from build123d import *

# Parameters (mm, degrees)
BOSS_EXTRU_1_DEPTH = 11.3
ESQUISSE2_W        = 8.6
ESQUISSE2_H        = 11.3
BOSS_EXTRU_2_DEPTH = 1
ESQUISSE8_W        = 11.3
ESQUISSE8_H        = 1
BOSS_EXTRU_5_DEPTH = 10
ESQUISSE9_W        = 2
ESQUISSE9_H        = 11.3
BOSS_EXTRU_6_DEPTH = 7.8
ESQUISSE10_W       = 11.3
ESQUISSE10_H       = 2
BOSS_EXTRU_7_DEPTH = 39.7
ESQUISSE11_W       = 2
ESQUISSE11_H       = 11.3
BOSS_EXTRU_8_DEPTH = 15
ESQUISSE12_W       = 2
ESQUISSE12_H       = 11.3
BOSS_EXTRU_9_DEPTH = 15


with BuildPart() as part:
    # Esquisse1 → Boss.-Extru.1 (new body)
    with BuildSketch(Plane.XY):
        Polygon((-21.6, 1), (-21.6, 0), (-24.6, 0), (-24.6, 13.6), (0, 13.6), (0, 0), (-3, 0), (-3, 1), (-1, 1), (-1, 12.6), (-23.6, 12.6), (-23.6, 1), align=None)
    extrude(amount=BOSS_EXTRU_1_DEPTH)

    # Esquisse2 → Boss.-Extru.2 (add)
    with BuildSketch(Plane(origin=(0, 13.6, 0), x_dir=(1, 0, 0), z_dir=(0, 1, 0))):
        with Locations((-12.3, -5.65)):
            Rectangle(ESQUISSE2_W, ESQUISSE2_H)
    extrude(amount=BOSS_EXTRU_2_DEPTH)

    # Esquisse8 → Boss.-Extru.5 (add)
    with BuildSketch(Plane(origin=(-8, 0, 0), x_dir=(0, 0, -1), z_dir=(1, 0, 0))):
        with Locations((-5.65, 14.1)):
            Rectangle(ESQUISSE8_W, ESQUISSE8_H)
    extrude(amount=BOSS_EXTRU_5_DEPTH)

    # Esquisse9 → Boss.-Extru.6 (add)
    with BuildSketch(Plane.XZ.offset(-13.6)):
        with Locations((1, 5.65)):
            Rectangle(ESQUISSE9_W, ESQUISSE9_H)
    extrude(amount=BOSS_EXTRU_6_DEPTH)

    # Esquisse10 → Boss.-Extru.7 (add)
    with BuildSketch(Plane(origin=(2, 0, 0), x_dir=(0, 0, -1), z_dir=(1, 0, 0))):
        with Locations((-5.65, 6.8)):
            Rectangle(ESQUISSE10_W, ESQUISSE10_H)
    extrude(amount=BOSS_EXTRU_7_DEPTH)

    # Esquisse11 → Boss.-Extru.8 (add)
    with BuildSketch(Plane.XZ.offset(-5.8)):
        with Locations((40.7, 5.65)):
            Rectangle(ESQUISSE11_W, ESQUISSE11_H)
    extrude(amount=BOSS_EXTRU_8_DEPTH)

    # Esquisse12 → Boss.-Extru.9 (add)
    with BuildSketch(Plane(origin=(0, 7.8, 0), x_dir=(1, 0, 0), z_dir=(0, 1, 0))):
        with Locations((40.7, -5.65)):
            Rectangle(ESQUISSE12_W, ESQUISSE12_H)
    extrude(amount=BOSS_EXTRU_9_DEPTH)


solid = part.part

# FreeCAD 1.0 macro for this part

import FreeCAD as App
import Part
import Sketcher

V = App.Vector
Q = App.Units.Quantity

doc = App.newDocument("Part")
params = doc.addObject("Spreadsheet::Sheet", "Params")
for row, (alias, value) in enumerate([
    ("sketch1_width", "2 mm"),
    ("sketch1_width2", "3 mm"),
    ("sketch1_height", "1 mm"),
    ("sketch1_width3", "22.6 mm"),
    ("sketch1_height2", "11.6 mm"),
    ("pad1_length", "11.3 mm"),
    ("sketch2_width", "8.6 mm"),
    ("sketch2_height", "11.3 mm"),
    ("pad2_length", "1 mm"),
    ("sketch3_width", "1 mm"),
    ("sketch3_height", "11.3 mm"),
    ("pad3_length", "10 mm"),
    ("sketch4_width", "2 mm"),
    ("sketch4_height", "11.3 mm"),
    ("pad4_length", "7.8 mm"),
    ("sketch5_width", "2 mm"),
    ("sketch5_height", "11.3 mm"),
    ("pad5_length", "39.7 mm"),
    ("sketch6_width", "2 mm"),
    ("sketch6_height", "11.3 mm"),
    ("pad6_length", "15 mm"),
    ("sketch7_width", "2 mm"),
    ("sketch7_height", "11.3 mm"),
    ("pad7_length", "15 mm"),
], start=1):
    params.set(f"A{row}", alias)
    params.set(f"B{row}", "=" + value)
    params.setAlias(f"B{row}", alias)

body = doc.addObject("PartDesign::Body", "Body")

sketch1 = body.newObject("Sketcher::SketchObject", "Sketch")
sketch1.AttachmentSupport = (doc.getObject("XY_Plane"), [""])
sketch1.MapMode = "FlatFace"
sketch1.addGeometry([
    Part.LineSegment(V(-21.6, 0, 0), V(-21.6, 1, 0)),
    Part.LineSegment(V(-21.6, 1, 0), V(-23.6, 1, 0)),
    Part.LineSegment(V(-23.6, 1, 0), V(-23.6, 12.6, 0)),
    Part.LineSegment(V(-23.6, 12.6, 0), V(-1, 12.6, 0)),
    Part.LineSegment(V(-1, 12.6, 0), V(-1, 1, 0)),
    Part.LineSegment(V(-1, 1, 0), V(-3, 1, 0)),
    Part.LineSegment(V(-3, 1, 0), V(-3, 0, 0)),
    Part.LineSegment(V(-3, 0, 0), V(0, 0, 0)),
    Part.LineSegment(V(0, 0, 0), V(0, 13.6, 0)),
    Part.LineSegment(V(0, 13.6, 0), V(-24.6, 13.6, 0)),
    Part.LineSegment(V(-24.6, 13.6, 0), V(-24.6, 0, 0)),
    Part.LineSegment(V(-24.6, 0, 0), V(-21.6, 0, 0)),
], False)
sketch1.addConstraint([
    Sketcher.Constraint("Coincident", 0, 2, 1, 1),
    Sketcher.Constraint("Coincident", 1, 2, 2, 1),
    Sketcher.Constraint("Coincident", 2, 2, 3, 1),
    Sketcher.Constraint("Coincident", 3, 2, 4, 1),
    Sketcher.Constraint("Coincident", 4, 2, 5, 1),
    Sketcher.Constraint("Coincident", 5, 2, 6, 1),
    Sketcher.Constraint("Coincident", 6, 2, 7, 1),
    Sketcher.Constraint("Coincident", 7, 2, 8, 1),
    Sketcher.Constraint("Coincident", 8, 2, 9, 1),
    Sketcher.Constraint("Coincident", 9, 2, 10, 1),
    Sketcher.Constraint("Coincident", 10, 2, 11, 1),
    Sketcher.Constraint("Coincident", 11, 2, 0, 1),
    Sketcher.Constraint("Vertical", 0),
    Sketcher.Constraint("Horizontal", 1),
    Sketcher.Constraint("Vertical", 2),
    Sketcher.Constraint("Horizontal", 3),
    Sketcher.Constraint("Vertical", 4),
    Sketcher.Constraint("Horizontal", 5),
    Sketcher.Constraint("Vertical", 6),
    Sketcher.Constraint("Horizontal", 7),
    Sketcher.Constraint("Vertical", 8),
    Sketcher.Constraint("Horizontal", 9),
    Sketcher.Constraint("Vertical", 10),
    Sketcher.Constraint("Horizontal", 11),
    Sketcher.Constraint("Coincident", 7, 2, -1, 1),
    Sketcher.Constraint("PointOnObject", 10, 2, -1),
    Sketcher.Constraint("Horizontal", 1, 2, 4, 2),
    Sketcher.Constraint("Equal", 1, 5),
    Sketcher.Constraint("Equal", 7, 11),
    Sketcher.Constraint("DistanceX", 1, 2, 1, 1, Q("2 mm")),
    Sketcher.Constraint("DistanceX", 7, 1, 7, 2, Q("3 mm")),
    Sketcher.Constraint("DistanceY", 0, 1, 0, 2, Q("1 mm")),
    Sketcher.Constraint("DistanceX", 3, 1, 3, 2, Q("22.6 mm")),
    Sketcher.Constraint("DistanceY", 2, 1, 2, 2, Q("11.6 mm")),
    Sketcher.Constraint("DistanceY", 8, 1, 8, 2, Q("13.6 mm")),
])
sketch1.setExpression("Constraints[29]", "Params.sketch1_width")
sketch1.setExpression("Constraints[30]", "Params.sketch1_width2")
sketch1.setExpression("Constraints[31]", "Params.sketch1_height")
sketch1.setExpression("Constraints[32]", "Params.sketch1_width3")
sketch1.setExpression("Constraints[33]", "Params.sketch1_height2")
pad1 = body.newObject("PartDesign::Pad", "Pad")
pad1.Profile = sketch1
pad1.setExpression("Length", "Params.pad1_length")

sketch2 = body.newObject("Sketcher::SketchObject", "Sketch001")
sketch2.AttachmentSupport = (doc.getObject("XZ_Plane"), [""])
sketch2.MapMode = "FlatFace"
sketch2.AttachmentOffset = App.Placement(V(0, 0, -13.6), App.Rotation())
sketch2.addGeometry([
    Part.LineSegment(V(-17, 0, 0), V(-17, 11, 0)),
    Part.LineSegment(V(-17, 11, 0), V(-8, 11, 0)),
    Part.LineSegment(V(-8, 11, 0), V(-8, 0, 0)),
    Part.LineSegment(V(-8, 0, 0), V(-17, 0, 0)),
], False)
sketch2.addConstraint([
    Sketcher.Constraint("Coincident", 0, 2, 1, 1),
    Sketcher.Constraint("Coincident", 1, 2, 2, 1),
    Sketcher.Constraint("Coincident", 2, 2, 3, 1),
    Sketcher.Constraint("Coincident", 3, 2, 0, 1),
    Sketcher.Constraint("Vertical", 0),
    Sketcher.Constraint("Horizontal", 1),
    Sketcher.Constraint("Vertical", 2),
    Sketcher.Constraint("Horizontal", 3),
    Sketcher.Constraint("PointOnObject", 2, 2, -1),
    Sketcher.Constraint("DistanceX", 1, 1, 1, 2, Q("8.6 mm")),
    Sketcher.Constraint("DistanceY", 0, 1, 0, 2, Q("11.3 mm")),
    Sketcher.Constraint("DistanceX", 1, 2, -1, 1, Q("8 mm")),
])
sketch2.setExpression("Constraints[9]", "Params.sketch2_width")
sketch2.setExpression("Constraints[10]", "Params.sketch2_height")
pad2 = body.newObject("PartDesign::Pad", "Pad001")
pad2.Profile = sketch2
pad2.setExpression("Length", "Params.pad2_length")
pad2.Reversed = True

sketch3 = body.newObject("Sketcher::SketchObject", "Sketch002")
sketch3.AttachmentSupport = (doc.getObject("YZ_Plane"), [""])
sketch3.MapMode = "FlatFace"
sketch3.AttachmentOffset = App.Placement(V(0, 0, -8), App.Rotation())
sketch3.addGeometry([
    Part.LineSegment(V(14.6, 11.3, 0), V(13.6, 11.3, 0)),
    Part.LineSegment(V(13.6, 11.3, 0), V(13.6, 0, 0)),
    Part.LineSegment(V(13.6, 0, 0), V(14.6, 0, 0)),
    Part.LineSegment(V(14.6, 0, 0), V(14.6, 11.3, 0)),
], False)
sketch3.addConstraint([
    Sketcher.Constraint("Coincident", 0, 2, 1, 1),
    Sketcher.Constraint("Coincident", 1, 2, 2, 1),
    Sketcher.Constraint("Coincident", 2, 2, 3, 1),
    Sketcher.Constraint("Coincident", 3, 2, 0, 1),
    Sketcher.Constraint("Horizontal", 0),
    Sketcher.Constraint("Vertical", 1),
    Sketcher.Constraint("Horizontal", 2),
    Sketcher.Constraint("Vertical", 3),
    Sketcher.Constraint("PointOnObject", 1, 2, -1),
    Sketcher.Constraint("DistanceX", 0, 2, 0, 1, Q("1 mm")),
    Sketcher.Constraint("DistanceY", 1, 2, 1, 1, Q("11.3 mm")),
    Sketcher.Constraint("DistanceX", -1, 1, 0, 2, Q("13.6 mm")),
])
sketch3.setExpression("Constraints[9]", "Params.sketch3_width")
sketch3.setExpression("Constraints[10]", "Params.sketch3_height")
pad3 = body.newObject("PartDesign::Pad", "Pad002")
pad3.Profile = sketch3
pad3.setExpression("Length", "Params.pad3_length")

sketch4 = body.newObject("Sketcher::SketchObject", "Sketch003")
sketch4.AttachmentSupport = (doc.getObject("XZ_Plane"), [""])
sketch4.MapMode = "FlatFace"
sketch4.AttachmentOffset = App.Placement(V(0, 0, -13.6), App.Rotation())
sketch4.addGeometry([
    Part.LineSegment(V(0, 11.3, 0), V(0, 0, 0)),
    Part.LineSegment(V(0, 0, 0), V(2, 0, 0)),
    Part.LineSegment(V(2, 0, 0), V(2, 11.3, 0)),
    Part.LineSegment(V(2, 11.3, 0), V(0, 11.3, 0)),
], False)
sketch4.addConstraint([
    Sketcher.Constraint("Coincident", 0, 2, 1, 1),
    Sketcher.Constraint("Coincident", 1, 2, 2, 1),
    Sketcher.Constraint("Coincident", 2, 2, 3, 1),
    Sketcher.Constraint("Coincident", 3, 2, 0, 1),
    Sketcher.Constraint("Vertical", 0),
    Sketcher.Constraint("Horizontal", 1),
    Sketcher.Constraint("Vertical", 2),
    Sketcher.Constraint("Horizontal", 3),
    Sketcher.Constraint("Coincident", 0, 2, -1, 1),
    Sketcher.Constraint("DistanceX", 1, 1, 1, 2, Q("2 mm")),
    Sketcher.Constraint("DistanceY", 0, 2, 0, 1, Q("11.3 mm")),
])
sketch4.setExpression("Constraints[9]", "Params.sketch4_width")
sketch4.setExpression("Constraints[10]", "Params.sketch4_height")
pad4 = body.newObject("PartDesign::Pad", "Pad003")
pad4.Profile = sketch4
pad4.setExpression("Length", "Params.pad4_length")

sketch5 = body.newObject("Sketcher::SketchObject", "Sketch004")
sketch5.AttachmentSupport = (doc.getObject("YZ_Plane"), [""])
sketch5.MapMode = "FlatFace"
sketch5.AttachmentOffset = App.Placement(V(0, 0, 2), App.Rotation())
sketch5.addGeometry([
    Part.LineSegment(V(7.8, 11.3, 0), V(5.8, 11.3, 0)),
    Part.LineSegment(V(5.8, 11.3, 0), V(5.8, 0, 0)),
    Part.LineSegment(V(5.8, 0, 0), V(7.8, 0, 0)),
    Part.LineSegment(V(7.8, 0, 0), V(7.8, 11.3, 0)),
], False)
sketch5.addConstraint([
    Sketcher.Constraint("Coincident", 0, 2, 1, 1),
    Sketcher.Constraint("Coincident", 1, 2, 2, 1),
    Sketcher.Constraint("Coincident", 2, 2, 3, 1),
    Sketcher.Constraint("Coincident", 3, 2, 0, 1),
    Sketcher.Constraint("Horizontal", 0),
    Sketcher.Constraint("Vertical", 1),
    Sketcher.Constraint("Horizontal", 2),
    Sketcher.Constraint("Vertical", 3),
    Sketcher.Constraint("PointOnObject", 1, 2, -1),
    Sketcher.Constraint("DistanceX", 0, 2, 0, 1, Q("2 mm")),
    Sketcher.Constraint("DistanceY", 1, 2, 1, 1, Q("11.3 mm")),
    Sketcher.Constraint("DistanceX", -1, 1, 0, 2, Q("5.8 mm")),
])
sketch5.setExpression("Constraints[9]", "Params.sketch5_width")
sketch5.setExpression("Constraints[10]", "Params.sketch5_height")
pad5 = body.newObject("PartDesign::Pad", "Pad004")
pad5.Profile = sketch5
pad5.setExpression("Length", "Params.pad5_length")

sketch6 = body.newObject("Sketcher::SketchObject", "Sketch005")
sketch6.AttachmentSupport = (doc.getObject("XZ_Plane"), [""])
sketch6.MapMode = "FlatFace"
sketch6.AttachmentOffset = App.Placement(V(0, 0, -5.8), App.Rotation())
sketch6.addGeometry([
    Part.LineSegment(V(39.7, 11.3, 0), V(39.7, 0, 0)),
    Part.LineSegment(V(39.7, 0, 0), V(41.7, 0, 0)),
    Part.LineSegment(V(41.7, 0, 0), V(41.7, 11.3, 0)),
    Part.LineSegment(V(41.7, 11.3, 0), V(39.7, 11.3, 0)),
], False)
sketch6.addConstraint([
    Sketcher.Constraint("Coincident", 0, 2, 1, 1),
    Sketcher.Constraint("Coincident", 1, 2, 2, 1),
    Sketcher.Constraint("Coincident", 2, 2, 3, 1),
    Sketcher.Constraint("Coincident", 3, 2, 0, 1),
    Sketcher.Constraint("Vertical", 0),
    Sketcher.Constraint("Horizontal", 1),
    Sketcher.Constraint("Vertical", 2),
    Sketcher.Constraint("Horizontal", 3),
    Sketcher.Constraint("PointOnObject", 0, 2, -1),
    Sketcher.Constraint("DistanceX", 1, 1, 1, 2, Q("2 mm")),
    Sketcher.Constraint("DistanceY", 0, 2, 0, 1, Q("11.3 mm")),
    Sketcher.Constraint("DistanceX", -1, 1, 0, 2, Q("39.7 mm")),
])
sketch6.setExpression("Constraints[9]", "Params.sketch6_width")
sketch6.setExpression("Constraints[10]", "Params.sketch6_height")
pad6 = body.newObject("PartDesign::Pad", "Pad005")
pad6.Profile = sketch6
pad6.setExpression("Length", "Params.pad6_length")

sketch7 = body.newObject("Sketcher::SketchObject", "Sketch006")
sketch7.AttachmentSupport = (doc.getObject("XZ_Plane"), [""])
sketch7.MapMode = "FlatFace"
sketch7.AttachmentOffset = App.Placement(V(0, 0, -7.8), App.Rotation())
sketch7.addGeometry([
    Part.LineSegment(V(39.7, 0, 0), V(39.7, 11.3, 0)),
    Part.LineSegment(V(39.7, 11.3, 0), V(41.7, 11.3, 0)),
    Part.LineSegment(V(41.7, 11.3, 0), V(41.7, 0, 0)),
    Part.LineSegment(V(41.7, 0, 0), V(39.7, 0, 0)),
], False)
sketch7.addConstraint([
    Sketcher.Constraint("Coincident", 0, 2, 1, 1),
    Sketcher.Constraint("Coincident", 1, 2, 2, 1),
    Sketcher.Constraint("Coincident", 2, 2, 3, 1),
    Sketcher.Constraint("Coincident", 3, 2, 0, 1),
    Sketcher.Constraint("Vertical", 0),
    Sketcher.Constraint("Horizontal", 1),
    Sketcher.Constraint("Vertical", 2),
    Sketcher.Constraint("Horizontal", 3),
    Sketcher.Constraint("PointOnObject", 2, 2, -1),
    Sketcher.Constraint("DistanceX", 1, 1, 1, 2, Q("2 mm")),
    Sketcher.Constraint("DistanceY", 0, 1, 0, 2, Q("11.3 mm")),
    Sketcher.Constraint("DistanceX", -1, 1, 0, 2, Q("39.7 mm")),
])
sketch7.setExpression("Constraints[9]", "Params.sketch7_width")
sketch7.setExpression("Constraints[10]", "Params.sketch7_height")
pad7 = body.newObject("PartDesign::Pad", "Pad006")
pad7.Profile = sketch7
pad7.setExpression("Length", "Params.pad7_length")
pad7.Reversed = True

doc.recompute()
